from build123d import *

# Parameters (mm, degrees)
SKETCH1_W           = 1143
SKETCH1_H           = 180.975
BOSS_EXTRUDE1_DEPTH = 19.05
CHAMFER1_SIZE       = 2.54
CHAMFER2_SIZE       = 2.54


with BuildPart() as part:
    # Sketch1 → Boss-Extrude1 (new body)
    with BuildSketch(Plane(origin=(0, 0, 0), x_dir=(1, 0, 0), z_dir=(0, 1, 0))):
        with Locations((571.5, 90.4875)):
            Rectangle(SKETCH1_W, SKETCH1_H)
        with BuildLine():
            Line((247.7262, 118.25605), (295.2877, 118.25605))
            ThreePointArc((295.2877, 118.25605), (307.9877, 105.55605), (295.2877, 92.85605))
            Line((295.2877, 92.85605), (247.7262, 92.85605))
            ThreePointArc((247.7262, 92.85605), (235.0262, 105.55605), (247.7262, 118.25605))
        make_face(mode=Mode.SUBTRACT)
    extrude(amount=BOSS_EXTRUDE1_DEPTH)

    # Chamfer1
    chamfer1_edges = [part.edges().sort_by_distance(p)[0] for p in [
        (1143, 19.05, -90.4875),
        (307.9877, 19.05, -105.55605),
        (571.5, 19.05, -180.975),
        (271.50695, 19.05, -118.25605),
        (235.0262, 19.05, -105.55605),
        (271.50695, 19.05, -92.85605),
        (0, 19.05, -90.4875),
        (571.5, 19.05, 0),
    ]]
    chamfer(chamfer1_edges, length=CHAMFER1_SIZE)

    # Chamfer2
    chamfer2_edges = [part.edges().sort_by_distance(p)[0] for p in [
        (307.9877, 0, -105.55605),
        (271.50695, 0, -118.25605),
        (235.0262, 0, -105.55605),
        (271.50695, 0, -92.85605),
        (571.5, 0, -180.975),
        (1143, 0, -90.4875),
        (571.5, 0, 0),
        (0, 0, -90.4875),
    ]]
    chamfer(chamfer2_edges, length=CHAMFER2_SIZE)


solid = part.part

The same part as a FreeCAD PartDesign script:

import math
import FreeCAD as App
import Part
import Sketcher

V = App.Vector
Q = App.Units.Quantity


def edges_at(feature, points):
    """Names of the edges that pass closest to the given points."""
    edges = feature.Shape.Edges
    near = lambda p: min(range(len(edges)), key=lambda i: edges[i].distToShape(Part.Vertex(*p))[0])
    return sorted({f"Edge{near(p) + 1}" for p in points})


def add_polygon(sketch, points):
    """Adds a closed chain of lines whose ends are joined by coincident constraints."""
    first, n = sketch.GeometryCount, len(points)
    for a, b in zip(points, points[1:] + points[:1]):
        sketch.addGeometry(Part.LineSegment(App.Vector(*a, 0), App.Vector(*b, 0)), False)
    for i in range(n):
        sketch.addConstraint(Sketcher.Constraint("Coincident", first + i, 2, first + (i + 1) % n, 1))

doc = App.newDocument("Part")
body = doc.addObject("PartDesign::Body", "Body")

# Sketch on XZ plane
sketch1 = doc.addObject("Sketcher::SketchObject", "Sketch")
body.addObject(sketch1)
sketch1.AttachmentSupport = (doc.XZ_Plane, [""])
sketch1.MapMode = "FlatFace"
add_polygon(sketch1, [(0, -181), (0, 0), (1143, 0), (1143, -181)])  # lines 0-3
sketch1.addGeometry(Part.ArcOfCircle(Part.Circle(V(248, -106, 0), V(0, 0, 1), 13), math.radians(90), math.radians(270)), False)  # 4
sketch1.addGeometry(Part.LineSegment(V(248, -118, 0), V(295, -118, 0)), False)  # 5
sketch1.addGeometry(Part.ArcOfCircle(Part.Circle(V(295, -106, 0), V(0, 0, 1), 13), math.radians(-90), math.radians(90)), False)  # 6
sketch1.addGeometry(Part.LineSegment(V(295, -93, 0), V(248, -93, 0)), False)  # 7
sketch1.addConstraint([
    Sketcher.Constraint("Tangent", 4, 2, 5, 1),
    Sketcher.Constraint("Tangent", 5, 2, 6, 1),
    Sketcher.Constraint("Tangent", 6, 2, 7, 1),
    Sketcher.Constraint("Tangent", 7, 2, 4, 1),
    Sketcher.Constraint("Vertical", 0),
    Sketcher.Constraint("Horizontal", 1),
    Sketcher.Constraint("Vertical", 2),
    Sketcher.Constraint("Horizontal", 3),
    Sketcher.Constraint("Horizontal", 5),
    Sketcher.Constraint("Horizontal", 7),
    Sketcher.Constraint("Coincident", 0, 2, -1, 1),
    Sketcher.Constraint("Radius", 4, Q("0.5 in")),
    Sketcher.Constraint("DistanceX", 1, 1, 1, 2, Q("45 in")),
    Sketcher.Constraint("DistanceY", 0, 1, 0, 2, Q("7.125 in")),
    Sketcher.Constraint("DistanceX", 5, 1, 5, 2, Q("1.8725 in")),
    Sketcher.Constraint("DistanceX", -1, 1, 4, 3, Q("9.753 in")),
    Sketcher.Constraint("DistanceY", 4, 3, -1, 1, 105.55605),
])
pad1 = doc.addObject("PartDesign::Pad", "Pad")
body.addObject(pad1)
pad1.Profile = sketch1
pad1.Length = Q("0.75 in")
pad1.Reversed = True
doc.recompute()

chamfer = doc.addObject("PartDesign::Chamfer", "Chamfer")
body.addObject(chamfer)
chamfer.Base = (pad1, edges_at(pad1, [
    (1143, 19.05, -90.487),
    (307.988, 19.05, -105.556),
    (571.5, 19.05, -180.975),
    (271.507, 19.05, -118.256),
    (235.026, 19.05, -105.556),
    (271.507, 19.05, -92.856),
    (0, 19.05, -90.487),
    (571.5, 19.05, 0),
]))
chamfer.Size = Q("0.1 in")
doc.recompute()

chamfer2 = doc.addObject("PartDesign::Chamfer", "Chamfer001")
body.addObject(chamfer2)
chamfer2.Base = (chamfer, edges_at(chamfer, [
    (307.988, 0, -105.556),
    (271.507, 0, -118.256),
    (235.026, 0, -105.556),
    (271.507, 0, -92.856),
    (571.5, 0, -180.975),
    (1143, 0, -90.487),
    (571.5, 0, 0),
    (0, 0, -90.487),
]))
chamfer2.Size = Q("0.1 in")

doc.recompute()
